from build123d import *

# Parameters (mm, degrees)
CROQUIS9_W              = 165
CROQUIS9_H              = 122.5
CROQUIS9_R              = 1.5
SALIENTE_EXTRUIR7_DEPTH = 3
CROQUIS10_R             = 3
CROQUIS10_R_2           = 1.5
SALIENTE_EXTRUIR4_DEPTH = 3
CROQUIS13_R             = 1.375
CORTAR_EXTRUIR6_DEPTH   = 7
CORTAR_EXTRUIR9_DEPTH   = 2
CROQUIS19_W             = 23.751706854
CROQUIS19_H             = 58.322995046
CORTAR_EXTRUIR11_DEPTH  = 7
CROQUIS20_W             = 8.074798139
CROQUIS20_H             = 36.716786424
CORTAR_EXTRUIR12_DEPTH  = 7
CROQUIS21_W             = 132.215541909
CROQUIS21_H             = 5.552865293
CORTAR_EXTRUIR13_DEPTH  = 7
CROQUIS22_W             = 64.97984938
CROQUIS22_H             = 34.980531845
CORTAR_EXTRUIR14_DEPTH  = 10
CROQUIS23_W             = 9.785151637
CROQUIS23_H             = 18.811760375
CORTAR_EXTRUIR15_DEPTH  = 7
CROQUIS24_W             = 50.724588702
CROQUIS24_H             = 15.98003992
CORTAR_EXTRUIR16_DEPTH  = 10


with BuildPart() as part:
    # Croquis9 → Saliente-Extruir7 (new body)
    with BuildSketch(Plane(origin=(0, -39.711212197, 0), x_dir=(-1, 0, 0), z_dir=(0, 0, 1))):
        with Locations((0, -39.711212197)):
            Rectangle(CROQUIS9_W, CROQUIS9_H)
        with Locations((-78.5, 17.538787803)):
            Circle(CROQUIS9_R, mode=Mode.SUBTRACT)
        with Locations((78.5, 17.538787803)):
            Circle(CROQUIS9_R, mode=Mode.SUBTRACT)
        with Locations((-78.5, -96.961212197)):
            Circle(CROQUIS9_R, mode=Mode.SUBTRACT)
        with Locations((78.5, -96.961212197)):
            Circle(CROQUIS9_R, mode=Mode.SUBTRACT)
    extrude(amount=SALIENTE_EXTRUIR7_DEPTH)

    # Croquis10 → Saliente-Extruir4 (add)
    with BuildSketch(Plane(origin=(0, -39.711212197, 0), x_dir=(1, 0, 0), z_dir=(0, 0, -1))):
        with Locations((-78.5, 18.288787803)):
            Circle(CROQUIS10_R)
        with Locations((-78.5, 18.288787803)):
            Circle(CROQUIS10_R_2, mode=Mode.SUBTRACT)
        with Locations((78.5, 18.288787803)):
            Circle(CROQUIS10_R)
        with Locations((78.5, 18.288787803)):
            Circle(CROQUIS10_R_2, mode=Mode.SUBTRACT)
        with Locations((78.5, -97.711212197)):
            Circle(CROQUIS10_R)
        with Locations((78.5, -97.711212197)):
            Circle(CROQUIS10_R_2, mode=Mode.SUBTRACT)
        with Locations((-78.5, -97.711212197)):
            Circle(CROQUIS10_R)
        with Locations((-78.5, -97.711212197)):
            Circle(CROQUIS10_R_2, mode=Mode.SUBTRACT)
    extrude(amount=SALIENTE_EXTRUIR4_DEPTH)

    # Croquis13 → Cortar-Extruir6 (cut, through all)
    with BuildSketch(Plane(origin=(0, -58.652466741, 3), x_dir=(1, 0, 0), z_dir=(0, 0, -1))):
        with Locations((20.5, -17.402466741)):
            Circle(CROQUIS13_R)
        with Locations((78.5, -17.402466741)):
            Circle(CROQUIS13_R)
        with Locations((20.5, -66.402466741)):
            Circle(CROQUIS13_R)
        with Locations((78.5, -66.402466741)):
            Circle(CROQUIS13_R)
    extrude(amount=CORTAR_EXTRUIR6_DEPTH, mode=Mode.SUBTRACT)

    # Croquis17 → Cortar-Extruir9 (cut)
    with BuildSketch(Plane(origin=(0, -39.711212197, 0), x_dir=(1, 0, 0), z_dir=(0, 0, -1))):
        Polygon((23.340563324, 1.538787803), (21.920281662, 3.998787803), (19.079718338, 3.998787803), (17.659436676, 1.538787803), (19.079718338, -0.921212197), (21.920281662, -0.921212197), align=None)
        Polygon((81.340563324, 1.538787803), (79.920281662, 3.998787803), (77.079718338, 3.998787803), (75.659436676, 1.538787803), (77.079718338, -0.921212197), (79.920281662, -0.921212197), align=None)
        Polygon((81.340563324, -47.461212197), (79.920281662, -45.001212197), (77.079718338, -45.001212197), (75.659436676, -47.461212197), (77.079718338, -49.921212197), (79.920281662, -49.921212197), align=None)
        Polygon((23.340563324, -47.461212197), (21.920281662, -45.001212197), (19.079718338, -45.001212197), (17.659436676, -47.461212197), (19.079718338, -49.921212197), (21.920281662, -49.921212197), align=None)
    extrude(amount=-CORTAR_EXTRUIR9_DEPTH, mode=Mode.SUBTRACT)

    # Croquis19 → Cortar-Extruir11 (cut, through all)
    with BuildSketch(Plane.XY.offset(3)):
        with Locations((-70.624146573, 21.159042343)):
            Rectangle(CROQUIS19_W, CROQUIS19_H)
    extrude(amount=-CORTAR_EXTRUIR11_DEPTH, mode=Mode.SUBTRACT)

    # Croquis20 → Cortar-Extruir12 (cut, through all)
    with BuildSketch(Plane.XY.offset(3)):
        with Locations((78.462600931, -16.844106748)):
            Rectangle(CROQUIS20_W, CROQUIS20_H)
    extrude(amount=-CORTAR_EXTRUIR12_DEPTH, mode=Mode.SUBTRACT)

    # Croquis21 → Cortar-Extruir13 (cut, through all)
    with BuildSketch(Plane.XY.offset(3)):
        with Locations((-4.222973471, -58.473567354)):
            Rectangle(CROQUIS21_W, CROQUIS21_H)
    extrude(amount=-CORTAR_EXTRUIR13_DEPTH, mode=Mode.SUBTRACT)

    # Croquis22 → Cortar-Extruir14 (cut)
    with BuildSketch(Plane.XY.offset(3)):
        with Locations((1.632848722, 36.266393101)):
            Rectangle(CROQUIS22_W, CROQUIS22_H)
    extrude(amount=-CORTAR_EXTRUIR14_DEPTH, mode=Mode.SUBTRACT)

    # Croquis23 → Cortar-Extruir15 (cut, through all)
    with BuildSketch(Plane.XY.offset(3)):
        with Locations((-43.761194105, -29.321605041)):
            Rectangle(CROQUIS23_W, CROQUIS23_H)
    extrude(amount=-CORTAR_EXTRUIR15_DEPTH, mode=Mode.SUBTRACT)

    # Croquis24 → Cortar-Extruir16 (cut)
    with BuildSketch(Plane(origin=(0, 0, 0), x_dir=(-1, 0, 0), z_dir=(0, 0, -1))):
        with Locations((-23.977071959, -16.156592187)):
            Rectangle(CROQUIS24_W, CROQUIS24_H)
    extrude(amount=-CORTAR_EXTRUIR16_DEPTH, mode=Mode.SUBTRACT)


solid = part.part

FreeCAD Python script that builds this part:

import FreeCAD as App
import Part
import Sketcher
from FreeCAD import Vector
Q = App.Units.Quantity


def add_polygon(sketch, points):
    """Adds a closed chain of lines whose ends are joined by coincident constraints."""
    first, n = sketch.GeometryCount, len(points)
    for a, b in zip(points, points[1:] + points[:1]):
        sketch.addGeometry(Part.LineSegment(App.Vector(*a, 0), App.Vector(*b, 0)), False)
    for i in range(n):
        sketch.addConstraint(Sketcher.Constraint("Coincident", first + i, 2, first + (i + 1) % n, 1))

doc = App.newDocument("Part")
body = doc.addObject("PartDesign::Body", "Body")

sketch1 = doc.addObject("Sketcher::SketchObject", "Sketch")
body.addObject(sketch1)
sketch1.AttachmentSupport = (doc.XY_Plane, [""])
sketch1.MapMode = "FlatFace"
add_polygon(sketch1, [(82.5, -61.2), (82.5, 61.2), (-82.5, 61.2), (-82.5, -61.2)])
sketch1.addGeometry(Part.Circle(Vector(78.5, 57.2, 0), Vector(0, 0, 1), 1.5), False)
sketch1.addGeometry(Part.Circle(Vector(-78.5, 57.2, 0), Vector(0, 0, 1), 1.5), False)
sketch1.addGeometry(Part.Circle(Vector(78.5, -57.2, 0), Vector(0, 0, 1), 1.5), False)
sketch1.addGeometry(Part.Circle(Vector(-78.5, -57.2, 0), Vector(0, 0, 1), 1.5), False)
sketch1.addConstraint([
    Sketcher.Constraint("Vertical", 0),
    Sketcher.Constraint("Horizontal", 1),
    Sketcher.Constraint("Vertical", 2),
    Sketcher.Constraint("Horizontal", 3),
    Sketcher.Constraint("Equal", 4, 5),
    Sketcher.Constraint("Equal", 5, 6),
    Sketcher.Constraint("Equal", 6, 7),
    Sketcher.Constraint("Symmetric", 5, 3, 6, 3, -1, 1),
    Sketcher.Constraint("Symmetric", 4, 3, 7, 3, -1, 1),
    Sketcher.Constraint("Symmetric", 0, 2, 2, 2, -1, 1),
    Sketcher.Constraint("Symmetric", 4, 3, 5, 3, -2),
    Sketcher.Constraint("Diameter", 4, 3.0),
    Sketcher.Constraint("DistanceX", 1, 2, 1, 1, 165.0),
    Sketcher.Constraint("DistanceY", 0, 1, 0, 2, 122.5),
    Sketcher.Constraint("DistanceX", 5, 3, 4, 3, 157.0),
    Sketcher.Constraint("DistanceY", 4, 3, 0, 2, 4.0),
])
pad1 = doc.addObject("PartDesign::Pad", "Pad")
body.addObject(pad1)
pad1.Profile = sketch1
pad1.Length = 3

sketch2 = doc.addObject("Sketcher::SketchObject", "Sketch001")
body.addObject(sketch2)
sketch2.AttachmentSupport = (doc.XY_Plane, [""])
sketch2.MapMode = "FlatFace"
sketch2.addGeometry([
    Part.Circle(Vector(-78.5, -58, 0), Vector(0, 0, 1), 3),
    Part.Circle(Vector(-78.5, -58, 0), Vector(0, 0, 1), 1.5),
    Part.Circle(Vector(78.5, -58, 0), Vector(0, 0, 1), 3),
    Part.Circle(Vector(78.5, -58, 0), Vector(0, 0, 1), 1.5),
    Part.Circle(Vector(78.5, 58, 0), Vector(0, 0, 1), 3),
    Part.Circle(Vector(78.5, 58, 0), Vector(0, 0, 1), 1.5),
    Part.Circle(Vector(-78.5, 58, 0), Vector(0, 0, 1), 3),
    Part.Circle(Vector(-78.5, 58, 0), Vector(0, 0, 1), 1.5),
], False)
sketch2.addConstraint([
    Sketcher.Constraint("Coincident", 1, 3, 0, 3),
    Sketcher.Constraint("Coincident", 3, 3, 2, 3),
    Sketcher.Constraint("Coincident", 5, 3, 4, 3),
    Sketcher.Constraint("Coincident", 7, 3, 6, 3),
    Sketcher.Constraint("Equal", 0, 2),
    Sketcher.Constraint("Equal", 1, 3),
    Sketcher.Constraint("Equal", 2, 4),
    Sketcher.Constraint("Equal", 3, 5),
    Sketcher.Constraint("Equal", 4, 6),
    Sketcher.Constraint("Equal", 5, 7),
    Sketcher.Constraint("Symmetric", 0, 3, 4, 3, -1, 1),
    Sketcher.Constraint("Symmetric", 2, 3, 6, 3, -1, 1),
    Sketcher.Constraint("Symmetric", 0, 3, 2, 3, -2),
    Sketcher.Constraint("Diameter", 0, 6.0),
    Sketcher.Constraint("Diameter", 1, 3.0),
    Sketcher.Constraint("DistanceY", 0, 3, -1, 1, 58.0),
    Sketcher.Constraint("DistanceX", 0, 3, 2, 3, 157.0),
])
pad2 = doc.addObject("PartDesign::Pad", "Pad001")
body.addObject(pad2)
pad2.Profile = sketch2
pad2.Length = 3
pad2.Reversed = True

sketch3 = doc.addObject("Sketcher::SketchObject", "Sketch002")
body.addObject(sketch3)
sketch3.AttachmentSupport = (doc.XY_Plane, [""])
sketch3.MapMode = "FlatFace"
sketch3.AttachmentOffset = App.Placement(Vector(0, 0, 3), App.Rotation())
sketch3.addGeometry([
    Part.Circle(Vector(20.5, -41.2, 0), Vector(0, 0, 1), 1.4),
    Part.Circle(Vector(78.5, -41.2, 0), Vector(0, 0, 1), 1.4),
    Part.Circle(Vector(20.5, 7.8, 0), Vector(0, 0, 1), 1.4),
    Part.Circle(Vector(78.5, 7.8, 0), Vector(0, 0, 1), 1.4),
], False)
sketch3.addConstraint([
    Sketcher.Constraint("Equal", 0, 1),
    Sketcher.Constraint("Equal", 1, 2),
    Sketcher.Constraint("Equal", 2, 3),
    Sketcher.Constraint("Horizontal", 0, 3, 1, 3),
    Sketcher.Constraint("Horizontal", 2, 3, 3, 3),
    Sketcher.Constraint("Vertical", 0, 3, 2, 3),
    Sketcher.Constraint("Vertical", 1, 3, 3, 3),
    Sketcher.Constraint("Diameter", 0, 2.75),
    Sketcher.Constraint("DistanceX", 0, 3, 1, 3, 58.0),
    Sketcher.Constraint("DistanceY", 0, 3, 2, 3, 49.0),
    Sketcher.Constraint("DistanceX", -1, 1, 0, 3, 20.5),
    Sketcher.Constraint("DistanceY", 0, 3, -1, 1, 41.25),
])
pocket1 = doc.addObject("PartDesign::Pocket", "Pocket")
body.addObject(pocket1)
pocket1.Profile = sketch3
pocket1.Type = "ThroughAll"

sketch4 = doc.addObject("Sketcher::SketchObject", "Sketch003")
body.addObject(sketch4)
sketch4.AttachmentSupport = (doc.XY_Plane, [""])
sketch4.MapMode = "FlatFace"
add_polygon(sketch4, [(23.3, -41.2), (21.9, -43.7), (19.1, -43.7), (17.7, -41.2), (19.1, -38.8), (21.9, -38.8)])
add_polygon(sketch4, [(81.3, -41.2), (79.9, -43.7), (77.1, -43.7), (75.7, -41.2), (77.1, -38.8), (79.9, -38.8)])
add_polygon(sketch4, [(81.3, 7.8), (79.9, 5.3), (77.1, 5.3), (75.7, 7.8), (77.1, 10.2), (79.9, 10.2)])
add_polygon(sketch4, [(23.3, 7.8), (21.9, 5.3), (19.1, 5.3), (17.7, 7.8), (19.1, 10.2), (21.9, 10.2)])
sketch4.addConstraint([
    Sketcher.Constraint("Horizontal", 1),
    Sketcher.Constraint("Horizontal", 4),
    Sketcher.Constraint("Horizontal", 7),
    Sketcher.Constraint("Horizontal", 10),
    Sketcher.Constraint("Horizontal", 13),
    Sketcher.Constraint("Horizontal", 16),
    Sketcher.Constraint("Horizontal", 19),
    Sketcher.Constraint("Horizontal", 22),
    Sketcher.Constraint("Parallel", 0, 3),
    Sketcher.Constraint("Parallel", 2, 5),
    Sketcher.Constraint("Parallel", 3, 6),
    Sketcher.Constraint("Parallel", 5, 8),
    Sketcher.Constraint("Parallel", 6, 9),
    Sketcher.Constraint("Parallel", 8, 11),
    Sketcher.Constraint("Parallel", 9, 12),
    Sketcher.Constraint("Parallel", 11, 14),
    Sketcher.Constraint("Parallel", 12, 15),
    Sketcher.Constraint("Parallel", 14, 17),
    Sketcher.Constraint("Parallel", 15, 18),
    Sketcher.Constraint("Parallel", 17, 20),
    Sketcher.Constraint("Parallel", 18, 21),
    Sketcher.Constraint("Parallel", 20, 23),
    Sketcher.Constraint("Horizontal", 2, 2, 5, 2),
    Sketcher.Constraint("Horizontal", 1, 2, 6, 2),
    Sketcher.Constraint("Horizontal", 5, 2, 8, 2),
    Sketcher.Constraint("Horizontal", 4, 2, 9, 2),
    Sketcher.Constraint("Horizontal", 8, 2, 11, 2),
    Sketcher.Constraint("Horizontal", 14, 2, 17, 2),
    Sketcher.Constraint("Horizontal", 13, 2, 18, 2),
    Sketcher.Constraint("Horizontal", 17, 2, 20, 2),
    Sketcher.Constraint("Horizontal", 16, 2, 21, 2),
    Sketcher.Constraint("Horizontal", 20, 2, 23, 2),
    Sketcher.Constraint("Vertical", 1, 2, 3, 2),
    Sketcher.Constraint("Vertical", 0, 2, 4, 2),
    Sketcher.Constraint("Vertical", 10, 2, 12, 2),
    Sketcher.Constraint("Vertical", 9, 2, 13, 2),
    Sketcher.Constraint("Vertical", 8, 2, 14, 2),
    Sketcher.Constraint("Vertical", 13, 2, 15, 2),
    Sketcher.Constraint("Vertical", 4, 2, 18, 2),
    Sketcher.Constraint("Vertical", 3, 2, 19, 2),
    Sketcher.Constraint("Equal", 4, 7),
    Sketcher.Constraint("Angle", 0, Q("-120 deg")),
    Sketcher.Constraint("DistanceX", 0, 2, 6, 2, 58.0),
    Sketcher.Constraint("DistanceY", 6, 2, 12, 2, 49.0),
    Sketcher.Constraint("DistanceY", 0, 2, -1, 1, 43.71),
    Sketcher.Constraint("DistanceY", 2, 2, -1, 1, 41.25),
    Sketcher.Constraint("DistanceX", 1, 2, 1, 1, 2.840563),
    Sketcher.Constraint("DistanceX", -1, 1, 0, 2, 21.920282),
])
pocket2 = doc.addObject("PartDesign::Pocket", "Pocket001")
body.addObject(pocket2)
pocket2.Profile = sketch4
pocket2.Length = 2
pocket2.Reversed = True

sketch5 = doc.addObject("Sketcher::SketchObject", "Sketch004")
body.addObject(sketch5)
sketch5.AttachmentSupport = (doc.XY_Plane, [""])
sketch5.MapMode = "FlatFace"
sketch5.AttachmentOffset = App.Placement(Vector(0, 0, 3), App.Rotation())
add_polygon(sketch5, [(-82, 50), (-82, -8), (-59, -8), (-59, 50)])
sketch5.addConstraint([
    Sketcher.Constraint("Vertical", 0),
    Sketcher.Constraint("Horizontal", 1),
    Sketcher.Constraint("Vertical", 2),
    Sketcher.Constraint("Horizontal", 3),
    Sketcher.Constraint("DistanceX", 0, 2, -1, 1, 82.5),
    Sketcher.Constraint("DistanceX", 1, 1, 1, 2, 23.751707),
    Sketcher.Constraint("DistanceY", 0, 2, 0, 1, 58.322995),
    Sketcher.Constraint("DistanceY", -1, 1, 2, 2, 50.32054),
])
pocket3 = doc.addObject("PartDesign::Pocket", "Pocket002")
body.addObject(pocket3)
pocket3.Profile = sketch5
pocket3.Type = "ThroughAll"

sketch6 = doc.addObject("Sketcher::SketchObject", "Sketch005")
body.addObject(sketch6)
sketch6.AttachmentSupport = (doc.XY_Plane, [""])
sketch6.MapMode = "FlatFace"
sketch6.AttachmentOffset = App.Placement(Vector(0, 0, 3), App.Rotation())
add_polygon(sketch6, [(74, 2), (74, -35), (82, -35), (82, 2)])
sketch6.addConstraint([
    Sketcher.Constraint("Vertical", 0),
    Sketcher.Constraint("Horizontal", 1),
    Sketcher.Constraint("Vertical", 2),
    Sketcher.Constraint("Horizontal", 3),
    Sketcher.Constraint("DistanceX", -1, 1, 1, 2, 82.5),
    Sketcher.Constraint("DistanceX", 1, 1, 1, 2, 8.074798),
    Sketcher.Constraint("DistanceY", 0, 2, -1, 1, 35.2025),
    Sketcher.Constraint("DistanceY", 0, 2, 0, 1, 36.716786),
])
pocket4 = doc.addObject("PartDesign::Pocket", "Pocket003")
body.addObject(pocket4)
pocket4.Profile = sketch6
pocket4.Type = "ThroughAll"

sketch7 = doc.addObject("Sketcher::SketchObject", "Sketch006")
body.addObject(sketch7)
sketch7.AttachmentSupport = (doc.XY_Plane, [""])
sketch7.MapMode = "FlatFace"
sketch7.AttachmentOffset = App.Placement(Vector(0, 0, 3), App.Rotation())
add_polygon(sketch7, [(-70, -56), (-70, -61), (62, -61), (62, -56)])
sketch7.addConstraint([
    Sketcher.Constraint("Vertical", 0),
    Sketcher.Constraint("Horizontal", 1),
    Sketcher.Constraint("Vertical", 2),
    Sketcher.Constraint("Horizontal", 3),
    Sketcher.Constraint("DistanceY", 0, 2, -1, 1, 61.25),
    Sketcher.Constraint("DistanceX", 1, 1, 1, 2, 132.215542),
    Sketcher.Constraint("DistanceY", 0, 2, 0, 1, 5.552865),
    Sketcher.Constraint("DistanceX", 0, 2, -1, 1, 70.330744),
])
pocket5 = doc.addObject("PartDesign::Pocket", "Pocket004")
body.addObject(pocket5)
pocket5.Profile = sketch7
pocket5.Type = "ThroughAll"

sketch8 = doc.addObject("Sketcher::SketchObject", "Sketch007")
body.addObject(sketch8)
sketch8.AttachmentSupport = (doc.XY_Plane, [""])
sketch8.MapMode = "FlatFace"
sketch8.AttachmentOffset = App.Placement(Vector(0, 0, 3), App.Rotation())
add_polygon(sketch8, [(-31, 54), (-31, 19), (34, 19), (34, 54)])
sketch8.addConstraint([
    Sketcher.Constraint("Vertical", 0),
    Sketcher.Constraint("Horizontal", 1),
    Sketcher.Constraint("Vertical", 2),
    Sketcher.Constraint("Horizontal", 3),
    Sketcher.Constraint("DistanceX", 1, 1, 1, 2, 64.979849),
    Sketcher.Constraint("DistanceY", 0, 2, 0, 1, 34.980532),
    Sketcher.Constraint("DistanceY", -1, 1, 2, 2, 53.756659),
    Sketcher.Constraint("DistanceX", 0, 2, -1, 1, 30.857076),
])
pocket6 = doc.addObject("PartDesign::Pocket", "Pocket005")
body.addObject(pocket6)
pocket6.Profile = sketch8
pocket6.Length = 10

sketch9 = doc.addObject("Sketcher::SketchObject", "Sketch008")
body.addObject(sketch9)
sketch9.AttachmentSupport = (doc.XY_Plane, [""])
sketch9.MapMode = "FlatFace"
sketch9.AttachmentOffset = App.Placement(Vector(0, 0, 3), App.Rotation())
add_polygon(sketch9, [(-49, -20), (-49, -39), (-39, -39), (-39, -20)])
sketch9.addConstraint([
    Sketcher.Constraint("Vertical", 0),
    Sketcher.Constraint("Horizontal", 1),
    Sketcher.Constraint("Vertical", 2),
    Sketcher.Constraint("Horizontal", 3),
    Sketcher.Constraint("DistanceX", 1, 1, 1, 2, 9.785152),
    Sketcher.Constraint("DistanceY", 0, 2, 0, 1, 18.81176),
    Sketcher.Constraint("DistanceX", 0, 2, -1, 1, 48.65377),
    Sketcher.Constraint("DistanceY", 0, 2, -1, 1, 38.727485),
])
pocket7 = doc.addObject("PartDesign::Pocket", "Pocket006")
body.addObject(pocket7)
pocket7.Profile = sketch9
pocket7.Type = "ThroughAll"

sketch10 = doc.addObject("Sketcher::SketchObject", "Sketch009")
body.addObject(sketch10)
sketch10.AttachmentSupport = (doc.XY_Plane, [""])
sketch10.MapMode = "FlatFace"
add_polygon(sketch10, [(49, -8), (49, -24), (-1, -24), (-1, -8)])
sketch10.addConstraint([
    Sketcher.Constraint("Vertical", 0),
    Sketcher.Constraint("Horizontal", 1),
    Sketcher.Constraint("Vertical", 2),
    Sketcher.Constraint("Horizontal", 3),
    Sketcher.Constraint("DistanceX", 1, 2, 1, 1, 50.724589),
    Sketcher.Constraint("DistanceY", 0, 2, 0, 1, 15.98004),
    Sketcher.Constraint("DistanceX", -1, 1, 0, 2, 49.339366),
    Sketcher.Constraint("DistanceY", 0, 2, -1, 1, 24.146612),
])
pocket8 = doc.addObject("PartDesign::Pocket", "Pocket007")
body.addObject(pocket8)
pocket8.Profile = sketch10
pocket8.Length = 10
pocket8.Reversed = True

doc.recompute()
